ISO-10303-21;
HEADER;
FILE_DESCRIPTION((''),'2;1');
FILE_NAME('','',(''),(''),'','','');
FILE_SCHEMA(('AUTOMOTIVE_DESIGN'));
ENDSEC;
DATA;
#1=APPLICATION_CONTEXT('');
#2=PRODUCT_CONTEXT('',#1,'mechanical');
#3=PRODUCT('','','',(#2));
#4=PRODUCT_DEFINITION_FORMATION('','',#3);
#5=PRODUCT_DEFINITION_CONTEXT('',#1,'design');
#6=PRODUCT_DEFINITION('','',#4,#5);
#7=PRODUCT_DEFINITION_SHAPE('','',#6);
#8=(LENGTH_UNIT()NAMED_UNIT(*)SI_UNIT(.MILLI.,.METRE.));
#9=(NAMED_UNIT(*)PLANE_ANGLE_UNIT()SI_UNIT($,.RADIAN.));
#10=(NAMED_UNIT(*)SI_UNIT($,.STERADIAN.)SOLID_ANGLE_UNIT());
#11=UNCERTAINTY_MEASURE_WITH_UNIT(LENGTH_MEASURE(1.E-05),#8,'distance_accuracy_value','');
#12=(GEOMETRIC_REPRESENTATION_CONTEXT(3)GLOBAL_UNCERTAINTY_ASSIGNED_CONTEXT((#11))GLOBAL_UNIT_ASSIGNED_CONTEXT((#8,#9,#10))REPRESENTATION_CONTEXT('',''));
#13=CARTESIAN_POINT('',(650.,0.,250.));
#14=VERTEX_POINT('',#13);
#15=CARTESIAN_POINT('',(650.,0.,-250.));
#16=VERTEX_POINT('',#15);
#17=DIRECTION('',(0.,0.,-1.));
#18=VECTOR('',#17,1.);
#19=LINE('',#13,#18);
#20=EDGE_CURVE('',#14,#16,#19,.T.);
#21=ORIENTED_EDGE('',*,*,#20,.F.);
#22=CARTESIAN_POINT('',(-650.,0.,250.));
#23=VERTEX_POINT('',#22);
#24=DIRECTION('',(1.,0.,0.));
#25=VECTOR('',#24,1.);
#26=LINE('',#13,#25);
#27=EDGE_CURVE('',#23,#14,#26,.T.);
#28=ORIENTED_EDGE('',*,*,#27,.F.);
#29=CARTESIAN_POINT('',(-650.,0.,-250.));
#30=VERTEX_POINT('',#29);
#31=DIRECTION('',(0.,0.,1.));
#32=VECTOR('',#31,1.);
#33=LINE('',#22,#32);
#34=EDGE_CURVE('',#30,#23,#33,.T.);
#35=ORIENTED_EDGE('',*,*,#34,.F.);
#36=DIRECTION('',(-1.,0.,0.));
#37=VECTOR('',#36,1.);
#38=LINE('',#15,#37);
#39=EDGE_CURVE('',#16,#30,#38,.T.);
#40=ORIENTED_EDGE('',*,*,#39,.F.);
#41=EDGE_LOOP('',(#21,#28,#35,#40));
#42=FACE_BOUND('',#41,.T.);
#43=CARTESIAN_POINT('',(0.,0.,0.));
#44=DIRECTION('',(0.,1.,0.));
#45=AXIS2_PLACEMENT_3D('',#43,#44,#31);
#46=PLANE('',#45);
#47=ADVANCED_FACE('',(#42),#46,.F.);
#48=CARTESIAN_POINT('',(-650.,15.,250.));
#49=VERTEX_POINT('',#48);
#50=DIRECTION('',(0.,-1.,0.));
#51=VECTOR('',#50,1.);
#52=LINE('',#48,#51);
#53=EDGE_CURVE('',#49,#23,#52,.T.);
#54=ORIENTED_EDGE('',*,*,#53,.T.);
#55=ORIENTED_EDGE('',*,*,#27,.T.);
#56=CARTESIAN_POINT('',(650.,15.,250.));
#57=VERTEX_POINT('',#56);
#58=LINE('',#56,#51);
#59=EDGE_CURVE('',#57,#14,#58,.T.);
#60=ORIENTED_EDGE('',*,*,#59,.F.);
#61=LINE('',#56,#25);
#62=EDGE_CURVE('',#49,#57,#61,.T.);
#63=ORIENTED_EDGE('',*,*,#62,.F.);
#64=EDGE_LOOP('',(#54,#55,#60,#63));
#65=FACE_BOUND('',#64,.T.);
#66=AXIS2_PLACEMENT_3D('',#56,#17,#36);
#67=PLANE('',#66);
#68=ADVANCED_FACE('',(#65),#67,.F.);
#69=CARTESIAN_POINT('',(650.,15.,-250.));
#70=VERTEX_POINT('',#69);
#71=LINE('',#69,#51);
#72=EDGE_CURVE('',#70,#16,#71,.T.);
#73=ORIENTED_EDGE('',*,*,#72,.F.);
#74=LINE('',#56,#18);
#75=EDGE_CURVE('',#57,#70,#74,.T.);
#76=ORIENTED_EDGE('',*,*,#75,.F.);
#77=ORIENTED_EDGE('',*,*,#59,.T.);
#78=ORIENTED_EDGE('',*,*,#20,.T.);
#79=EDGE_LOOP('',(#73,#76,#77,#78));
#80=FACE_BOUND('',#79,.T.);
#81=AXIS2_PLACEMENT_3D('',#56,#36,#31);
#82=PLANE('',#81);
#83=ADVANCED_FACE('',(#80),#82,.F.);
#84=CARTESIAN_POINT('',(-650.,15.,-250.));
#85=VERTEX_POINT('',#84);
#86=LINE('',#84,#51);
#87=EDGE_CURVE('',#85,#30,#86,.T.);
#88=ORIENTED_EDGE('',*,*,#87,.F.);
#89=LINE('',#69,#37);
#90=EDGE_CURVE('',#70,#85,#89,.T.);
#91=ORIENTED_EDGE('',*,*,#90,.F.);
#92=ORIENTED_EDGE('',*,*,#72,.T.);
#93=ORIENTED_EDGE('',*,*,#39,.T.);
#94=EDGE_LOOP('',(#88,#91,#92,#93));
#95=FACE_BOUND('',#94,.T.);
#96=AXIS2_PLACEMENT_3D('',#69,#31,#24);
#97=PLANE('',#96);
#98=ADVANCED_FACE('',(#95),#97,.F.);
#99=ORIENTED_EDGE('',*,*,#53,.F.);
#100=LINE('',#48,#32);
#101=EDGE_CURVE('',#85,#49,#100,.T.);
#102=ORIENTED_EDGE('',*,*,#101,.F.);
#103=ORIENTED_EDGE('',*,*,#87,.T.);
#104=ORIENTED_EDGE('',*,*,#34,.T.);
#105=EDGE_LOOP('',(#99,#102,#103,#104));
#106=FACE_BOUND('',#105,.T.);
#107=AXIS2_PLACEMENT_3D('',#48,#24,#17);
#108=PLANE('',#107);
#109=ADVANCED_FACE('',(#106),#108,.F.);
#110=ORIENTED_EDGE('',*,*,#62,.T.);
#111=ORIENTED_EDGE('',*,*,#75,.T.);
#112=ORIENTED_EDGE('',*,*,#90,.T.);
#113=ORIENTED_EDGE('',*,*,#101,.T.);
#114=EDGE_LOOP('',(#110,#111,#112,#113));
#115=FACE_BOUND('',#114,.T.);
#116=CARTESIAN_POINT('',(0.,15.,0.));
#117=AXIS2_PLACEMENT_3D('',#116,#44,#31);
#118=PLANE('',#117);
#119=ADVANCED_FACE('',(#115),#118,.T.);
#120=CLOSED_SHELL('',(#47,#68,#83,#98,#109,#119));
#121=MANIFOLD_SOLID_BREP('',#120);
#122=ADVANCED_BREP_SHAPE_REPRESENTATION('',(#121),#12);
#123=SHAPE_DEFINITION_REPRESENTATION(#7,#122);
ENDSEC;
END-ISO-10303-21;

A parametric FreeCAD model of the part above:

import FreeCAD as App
import Part
import Sketcher
Q = App.Units.Quantity


def add_polygon(sketch, points):
    """Adds a closed chain of lines whose ends are joined by coincident constraints."""
    first, n = sketch.GeometryCount, len(points)
    for a, b in zip(points, points[1:] + points[:1]):
        sketch.addGeometry(Part.LineSegment(App.Vector(*a, 0), App.Vector(*b, 0)), False)
    for i in range(n):
        sketch.addConstraint(Sketcher.Constraint("Coincident", first + i, 2, first + (i + 1) % n, 1))

doc = App.newDocument("Part")
body = doc.addObject("PartDesign::Body", "Body")

sketch1 = body.newObject("Sketcher::SketchObject", "Sketch")
sketch1.AttachmentSupport = (doc.getObject("XZ_Plane"), [""])
sketch1.MapMode = "FlatFace"
add_polygon(sketch1, [(-650, -250), (-650, 250), (650, 250), (650, -250)])
sketch1.addConstraint([
    Sketcher.Constraint("Vertical", 0),
    Sketcher.Constraint("Horizontal", 1),
    Sketcher.Constraint("Vertical", 2),
    Sketcher.Constraint("Horizontal", 3),
    Sketcher.Constraint("Symmetric", 0, 2, 2, 2, -1, 1),
    Sketcher.Constraint("DistanceX", 1, 1, 1, 2, Q("1300 mm")),
    Sketcher.Constraint("DistanceY", 0, 1, 0, 2, Q("500 mm")),
])
pad1 = body.newObject("PartDesign::Pad", "Pad")
pad1.Profile = sketch1
pad1.Length = 15
pad1.Reversed = True

doc.recompute()
